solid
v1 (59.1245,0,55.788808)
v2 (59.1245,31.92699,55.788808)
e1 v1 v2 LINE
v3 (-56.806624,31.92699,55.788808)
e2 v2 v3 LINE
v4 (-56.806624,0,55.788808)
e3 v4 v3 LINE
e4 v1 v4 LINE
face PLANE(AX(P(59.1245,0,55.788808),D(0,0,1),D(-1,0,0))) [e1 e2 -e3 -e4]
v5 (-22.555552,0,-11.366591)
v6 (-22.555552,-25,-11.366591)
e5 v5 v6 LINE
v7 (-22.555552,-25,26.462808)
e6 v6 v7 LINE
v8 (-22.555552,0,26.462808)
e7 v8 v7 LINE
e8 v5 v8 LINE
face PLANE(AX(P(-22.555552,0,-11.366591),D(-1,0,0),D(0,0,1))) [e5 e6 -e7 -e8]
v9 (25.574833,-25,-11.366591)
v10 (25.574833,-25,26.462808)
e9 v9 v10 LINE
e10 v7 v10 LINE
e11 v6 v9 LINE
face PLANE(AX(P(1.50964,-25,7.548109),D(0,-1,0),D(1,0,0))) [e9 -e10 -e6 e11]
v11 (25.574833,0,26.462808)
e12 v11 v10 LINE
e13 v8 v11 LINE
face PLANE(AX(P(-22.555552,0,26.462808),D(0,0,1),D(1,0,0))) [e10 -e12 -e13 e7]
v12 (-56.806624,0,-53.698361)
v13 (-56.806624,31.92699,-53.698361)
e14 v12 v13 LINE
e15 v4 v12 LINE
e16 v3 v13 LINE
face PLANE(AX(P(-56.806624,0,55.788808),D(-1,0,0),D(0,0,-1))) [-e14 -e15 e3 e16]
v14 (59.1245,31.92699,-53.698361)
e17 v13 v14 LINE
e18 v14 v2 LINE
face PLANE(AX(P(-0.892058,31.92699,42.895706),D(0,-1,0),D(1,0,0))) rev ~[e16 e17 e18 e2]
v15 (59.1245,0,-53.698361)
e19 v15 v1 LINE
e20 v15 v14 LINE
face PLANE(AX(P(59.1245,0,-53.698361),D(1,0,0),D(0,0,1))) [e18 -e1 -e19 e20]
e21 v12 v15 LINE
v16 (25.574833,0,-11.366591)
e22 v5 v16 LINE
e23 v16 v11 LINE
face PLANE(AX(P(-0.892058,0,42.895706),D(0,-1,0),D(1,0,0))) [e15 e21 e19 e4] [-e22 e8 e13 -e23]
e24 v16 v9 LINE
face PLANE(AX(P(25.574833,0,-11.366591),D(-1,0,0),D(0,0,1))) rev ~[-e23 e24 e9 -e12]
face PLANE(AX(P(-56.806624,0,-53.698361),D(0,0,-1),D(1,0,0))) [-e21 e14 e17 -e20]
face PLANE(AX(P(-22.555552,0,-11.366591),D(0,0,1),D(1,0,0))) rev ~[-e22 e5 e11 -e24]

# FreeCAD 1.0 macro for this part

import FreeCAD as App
import Part
import Sketcher

V = App.Vector


def add_polygon(sketch, points):
    """Adds a closed chain of lines whose ends are joined by coincident constraints."""
    first, n = sketch.GeometryCount, len(points)
    for a, b in zip(points, points[1:] + points[:1]):
        sketch.addGeometry(Part.LineSegment(App.Vector(*a, 0), App.Vector(*b, 0)), False)
    for i in range(n):
        sketch.addConstraint(Sketcher.Constraint("Coincident", first + i, 2, first + (i + 1) % n, 1))

doc = App.newDocument("Part")
params = doc.addObject("Spreadsheet::Sheet", "Params")
for row, (alias, value) in enumerate([
    ("pad1_length", "31.92699 mm"),
    ("pad2_length", "25 mm"),
], start=1):
    params.set(f"A{row}", alias)
    params.set(f"B{row}", "=" + value)
    params.setAlias(f"B{row}", alias)

body = doc.addObject("PartDesign::Body", "Body")

sketch1 = doc.addObject("Sketcher::SketchObject", "Sketch")
body.addObject(sketch1)
sketch1.AttachmentSupport = (doc.XZ_Plane, [""])
sketch1.MapMode = "FlatFace"
add_polygon(sketch1, [(59.1245, 55.788808), (-56.806624, 55.788808), (-56.806624, -53.698361), (59.1245, -53.698361)])
sketch1.addConstraint(Sketcher.Constraint("Horizontal", 0))
sketch1.addConstraint(Sketcher.Constraint("Vertical", 1))
sketch1.addConstraint(Sketcher.Constraint("Horizontal", 2))
sketch1.addConstraint(Sketcher.Constraint("Vertical", 3))
sketch1.addConstraint(Sketcher.Constraint("DistanceY", 1, 2, 1, 1, 109.487168))
sketch1.addConstraint(Sketcher.Constraint("DistanceX", -1, 1, 2, 2, 59.1245))
sketch1.addConstraint(Sketcher.Constraint("DistanceX", 0, 2, 0, 1, 115.931123))
sketch1.addConstraint(Sketcher.Constraint("DistanceY", 1, 2, -1, 1, 53.698361))
pad1 = doc.addObject("PartDesign::Pad", "Pad")
body.addObject(pad1)
pad1.Profile = sketch1
pad1.setExpression("Length", "Params.pad1_length")
pad1.Reversed = True

sketch2 = doc.addObject("Sketcher::SketchObject", "Sketch001")
body.addObject(sketch2)
sketch2.AttachmentSupport = (doc.XZ_Plane, [""])
sketch2.MapMode = "FlatFace"
add_polygon(sketch2, [(-22.555552, 26.462808), (-22.555552, -11.366591), (25.574833, -11.366591), (25.574833, 26.462808)])
sketch2.addConstraint(Sketcher.Constraint("Vertical", 0))
sketch2.addConstraint(Sketcher.Constraint("Horizontal", 1))
sketch2.addConstraint(Sketcher.Constraint("Vertical", 2))
sketch2.addConstraint(Sketcher.Constraint("Horizontal", 3))
sketch2.addConstraint(Sketcher.Constraint("DistanceY", 0, 2, 0, 1, 37.829399))
sketch2.addConstraint(Sketcher.Constraint("DistanceX", 1, 1, 1, 2, 48.130386))
sketch2.addConstraint(Sketcher.Constraint("DistanceY", 0, 2, -1, 1, 11.366591))
sketch2.addConstraint(Sketcher.Constraint("DistanceX", 0, 2, -1, 1, 22.555552))
pad2 = doc.addObject("PartDesign::Pad", "Pad001")
body.addObject(pad2)
pad2.Profile = sketch2
pad2.setExpression("Length", "Params.pad2_length")

doc.recompute()
